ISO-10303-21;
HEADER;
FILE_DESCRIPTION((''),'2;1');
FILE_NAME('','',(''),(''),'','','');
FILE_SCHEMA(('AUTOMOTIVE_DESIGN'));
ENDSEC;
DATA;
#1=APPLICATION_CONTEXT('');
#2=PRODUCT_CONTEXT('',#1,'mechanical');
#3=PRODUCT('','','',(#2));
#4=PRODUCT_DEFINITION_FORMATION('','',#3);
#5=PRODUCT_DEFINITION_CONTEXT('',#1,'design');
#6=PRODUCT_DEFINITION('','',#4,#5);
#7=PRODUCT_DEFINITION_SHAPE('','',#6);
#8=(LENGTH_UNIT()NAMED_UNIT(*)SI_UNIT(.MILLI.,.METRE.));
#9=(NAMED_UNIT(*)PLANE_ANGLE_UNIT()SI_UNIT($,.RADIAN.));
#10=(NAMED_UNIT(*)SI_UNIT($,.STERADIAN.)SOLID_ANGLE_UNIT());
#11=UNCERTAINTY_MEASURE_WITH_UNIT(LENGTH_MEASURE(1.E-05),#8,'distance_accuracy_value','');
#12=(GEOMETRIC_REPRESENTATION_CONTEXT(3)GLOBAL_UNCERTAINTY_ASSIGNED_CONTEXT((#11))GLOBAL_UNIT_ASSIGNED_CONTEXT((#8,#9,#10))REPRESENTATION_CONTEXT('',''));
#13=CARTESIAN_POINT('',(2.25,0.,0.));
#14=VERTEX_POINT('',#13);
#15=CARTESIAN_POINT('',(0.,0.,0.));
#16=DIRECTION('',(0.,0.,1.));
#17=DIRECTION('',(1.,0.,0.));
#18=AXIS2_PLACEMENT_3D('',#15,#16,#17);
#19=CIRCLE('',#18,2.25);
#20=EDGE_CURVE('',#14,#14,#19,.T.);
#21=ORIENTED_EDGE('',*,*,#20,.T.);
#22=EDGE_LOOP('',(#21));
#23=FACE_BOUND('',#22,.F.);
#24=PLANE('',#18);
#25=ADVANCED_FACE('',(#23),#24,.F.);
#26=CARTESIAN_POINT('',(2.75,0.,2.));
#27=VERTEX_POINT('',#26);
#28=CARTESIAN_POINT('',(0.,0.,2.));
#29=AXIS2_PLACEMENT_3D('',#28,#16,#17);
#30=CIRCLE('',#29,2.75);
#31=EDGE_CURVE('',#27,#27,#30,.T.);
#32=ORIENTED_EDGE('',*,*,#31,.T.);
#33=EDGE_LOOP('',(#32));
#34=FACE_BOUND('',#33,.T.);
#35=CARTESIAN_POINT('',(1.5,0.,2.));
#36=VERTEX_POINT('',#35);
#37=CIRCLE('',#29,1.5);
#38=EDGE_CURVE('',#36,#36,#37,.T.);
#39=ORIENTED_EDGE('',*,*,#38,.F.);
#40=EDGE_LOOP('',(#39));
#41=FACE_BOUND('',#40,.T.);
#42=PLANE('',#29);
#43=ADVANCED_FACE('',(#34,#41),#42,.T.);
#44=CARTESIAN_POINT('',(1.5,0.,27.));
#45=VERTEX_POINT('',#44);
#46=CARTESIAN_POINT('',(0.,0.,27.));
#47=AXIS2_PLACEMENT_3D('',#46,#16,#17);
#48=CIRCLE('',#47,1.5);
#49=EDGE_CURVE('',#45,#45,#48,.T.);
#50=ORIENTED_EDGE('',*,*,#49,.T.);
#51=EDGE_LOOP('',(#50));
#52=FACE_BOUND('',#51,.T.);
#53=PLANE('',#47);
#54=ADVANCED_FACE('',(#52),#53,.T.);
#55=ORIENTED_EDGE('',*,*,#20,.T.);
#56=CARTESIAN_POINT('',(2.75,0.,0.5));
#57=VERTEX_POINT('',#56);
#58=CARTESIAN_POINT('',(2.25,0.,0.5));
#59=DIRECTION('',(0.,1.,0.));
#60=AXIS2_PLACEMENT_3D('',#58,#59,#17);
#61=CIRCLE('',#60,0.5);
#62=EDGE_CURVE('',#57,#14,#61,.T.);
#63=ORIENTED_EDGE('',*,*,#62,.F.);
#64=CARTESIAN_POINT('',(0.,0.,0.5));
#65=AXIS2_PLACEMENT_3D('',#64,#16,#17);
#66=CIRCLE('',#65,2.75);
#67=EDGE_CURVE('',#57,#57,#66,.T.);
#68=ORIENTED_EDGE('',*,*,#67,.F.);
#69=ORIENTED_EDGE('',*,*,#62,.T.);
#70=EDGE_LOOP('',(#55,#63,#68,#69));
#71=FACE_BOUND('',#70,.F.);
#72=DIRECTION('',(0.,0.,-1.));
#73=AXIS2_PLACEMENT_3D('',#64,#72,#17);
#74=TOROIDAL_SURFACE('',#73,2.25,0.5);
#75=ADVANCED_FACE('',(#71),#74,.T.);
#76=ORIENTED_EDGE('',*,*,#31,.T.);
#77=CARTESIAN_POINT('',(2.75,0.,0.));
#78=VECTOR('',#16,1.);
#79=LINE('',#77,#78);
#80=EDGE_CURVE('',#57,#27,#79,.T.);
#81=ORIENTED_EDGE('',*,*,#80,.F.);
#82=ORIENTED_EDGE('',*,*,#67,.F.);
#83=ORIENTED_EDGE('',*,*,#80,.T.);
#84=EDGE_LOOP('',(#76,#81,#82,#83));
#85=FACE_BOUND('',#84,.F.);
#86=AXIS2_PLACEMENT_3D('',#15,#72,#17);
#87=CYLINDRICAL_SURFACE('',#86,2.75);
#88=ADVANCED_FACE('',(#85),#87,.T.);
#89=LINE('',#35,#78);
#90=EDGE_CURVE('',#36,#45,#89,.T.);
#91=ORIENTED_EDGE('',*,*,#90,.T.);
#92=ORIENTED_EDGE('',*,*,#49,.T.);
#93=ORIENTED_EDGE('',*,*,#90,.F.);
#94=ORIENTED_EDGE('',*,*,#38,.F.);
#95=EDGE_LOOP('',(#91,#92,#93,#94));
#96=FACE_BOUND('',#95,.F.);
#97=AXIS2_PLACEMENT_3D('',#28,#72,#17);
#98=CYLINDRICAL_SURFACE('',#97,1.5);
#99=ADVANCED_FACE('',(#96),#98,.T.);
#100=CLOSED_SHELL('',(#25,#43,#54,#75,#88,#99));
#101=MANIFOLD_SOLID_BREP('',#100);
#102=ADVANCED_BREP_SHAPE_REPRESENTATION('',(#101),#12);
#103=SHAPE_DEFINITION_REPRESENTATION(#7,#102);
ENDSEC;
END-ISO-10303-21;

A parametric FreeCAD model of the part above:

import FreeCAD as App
import Part
import Sketcher

V = App.Vector


def edges_at(feature, points):
    """Names of the edges that pass closest to the given points."""
    edges = feature.Shape.Edges
    near = lambda p: min(range(len(edges)), key=lambda i: edges[i].distToShape(Part.Vertex(*p))[0])
    return sorted({f"Edge{near(p) + 1}" for p in points})

doc = App.newDocument("Part")
body = doc.addObject("PartDesign::Body", "Body")

# Sketch on XY plane
sketch1 = body.newObject("Sketcher::SketchObject", "Sketch")
sketch1.AttachmentSupport = (doc.getObject("XY_Plane"), [""])
sketch1.MapMode = "FlatFace"
sketch1.addGeometry(Part.Circle(V(0, 0, 0), V(0, 0, 1), 2.8), False)
sketch1.addConstraint([
    Sketcher.Constraint("Coincident", 0, 3, -1, 1),
    Sketcher.Constraint("Diameter", 0, 5.5),
])
pad1 = body.newObject("PartDesign::Pad", "Pad")
pad1.Profile = sketch1
pad1.Length = 2

# Sketch on XY plane
sketch2 = body.newObject("Sketcher::SketchObject", "Sketch001")
sketch2.AttachmentSupport = (doc.getObject("XY_Plane"), [""])
sketch2.MapMode = "FlatFace"
sketch2.AttachmentOffset = App.Placement(V(0, 0, 2), App.Rotation())
sketch2.addGeometry(Part.Circle(V(0, 0, 0), V(0, 0, 1), 1.5), False)
sketch2.addConstraint([
    Sketcher.Constraint("Coincident", 0, 3, -1, 1),
    Sketcher.Constraint("Diameter", 0, 3.0),
])
pad2 = body.newObject("PartDesign::Pad", "Pad001")
pad2.Profile = sketch2
pad2.Length = 25
doc.recompute()

fillet = body.newObject("PartDesign::Fillet", "Fillet")
fillet.Base = (pad2, edges_at(pad2, [(-2.75, 0, 0)]))
fillet.Radius = 0.5

doc.recompute()
